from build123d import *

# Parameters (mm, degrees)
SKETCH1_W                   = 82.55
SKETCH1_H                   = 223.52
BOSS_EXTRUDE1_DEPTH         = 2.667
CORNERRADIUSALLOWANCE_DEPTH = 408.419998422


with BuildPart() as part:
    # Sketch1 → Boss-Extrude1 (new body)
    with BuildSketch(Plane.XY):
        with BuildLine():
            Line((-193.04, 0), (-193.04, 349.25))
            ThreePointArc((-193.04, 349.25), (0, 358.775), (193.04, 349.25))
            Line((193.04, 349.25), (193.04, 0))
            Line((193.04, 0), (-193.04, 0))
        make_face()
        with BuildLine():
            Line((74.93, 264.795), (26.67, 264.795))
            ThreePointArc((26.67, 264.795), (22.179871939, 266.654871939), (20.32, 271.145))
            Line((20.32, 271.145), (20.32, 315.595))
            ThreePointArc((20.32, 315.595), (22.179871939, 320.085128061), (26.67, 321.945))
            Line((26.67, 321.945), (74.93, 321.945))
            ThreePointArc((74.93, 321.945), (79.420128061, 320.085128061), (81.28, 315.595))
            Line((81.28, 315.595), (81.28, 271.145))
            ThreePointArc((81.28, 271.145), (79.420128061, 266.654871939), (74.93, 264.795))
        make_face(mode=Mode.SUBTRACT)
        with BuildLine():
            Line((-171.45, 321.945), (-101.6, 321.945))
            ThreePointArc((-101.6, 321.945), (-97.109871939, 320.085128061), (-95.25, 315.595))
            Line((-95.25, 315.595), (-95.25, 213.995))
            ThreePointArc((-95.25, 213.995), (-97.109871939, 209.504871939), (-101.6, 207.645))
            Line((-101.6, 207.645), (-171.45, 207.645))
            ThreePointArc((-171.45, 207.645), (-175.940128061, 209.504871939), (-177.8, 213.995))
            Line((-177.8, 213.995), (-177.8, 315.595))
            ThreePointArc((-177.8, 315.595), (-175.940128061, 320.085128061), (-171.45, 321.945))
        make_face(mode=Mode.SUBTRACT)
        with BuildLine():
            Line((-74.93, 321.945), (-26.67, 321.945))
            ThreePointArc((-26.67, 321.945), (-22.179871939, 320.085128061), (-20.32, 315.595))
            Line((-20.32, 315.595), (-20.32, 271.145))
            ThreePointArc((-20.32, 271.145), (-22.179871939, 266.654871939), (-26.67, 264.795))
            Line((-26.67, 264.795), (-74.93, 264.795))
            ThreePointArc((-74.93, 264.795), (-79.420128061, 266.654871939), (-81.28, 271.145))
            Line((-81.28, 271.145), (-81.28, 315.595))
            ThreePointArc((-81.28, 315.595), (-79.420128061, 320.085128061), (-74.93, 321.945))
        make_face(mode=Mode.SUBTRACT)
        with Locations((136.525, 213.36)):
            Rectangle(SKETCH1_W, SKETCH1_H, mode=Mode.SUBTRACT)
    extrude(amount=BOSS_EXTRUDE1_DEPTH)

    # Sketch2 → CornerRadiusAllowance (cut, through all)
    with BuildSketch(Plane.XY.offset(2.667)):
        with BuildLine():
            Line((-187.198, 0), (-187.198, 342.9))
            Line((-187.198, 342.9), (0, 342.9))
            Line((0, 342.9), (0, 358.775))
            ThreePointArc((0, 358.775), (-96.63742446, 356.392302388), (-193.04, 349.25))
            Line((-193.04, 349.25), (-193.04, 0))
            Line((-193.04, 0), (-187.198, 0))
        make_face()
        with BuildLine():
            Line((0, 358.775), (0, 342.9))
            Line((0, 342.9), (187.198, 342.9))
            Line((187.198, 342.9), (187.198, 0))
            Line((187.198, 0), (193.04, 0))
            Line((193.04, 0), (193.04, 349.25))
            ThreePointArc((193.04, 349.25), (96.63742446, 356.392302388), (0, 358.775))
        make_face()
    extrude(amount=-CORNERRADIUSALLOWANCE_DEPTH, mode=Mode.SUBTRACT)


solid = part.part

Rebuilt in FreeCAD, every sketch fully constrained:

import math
import FreeCAD as App
import Part
import Sketcher
from FreeCAD import Vector
Q = App.Units.Quantity

doc = App.newDocument("Part")
body = doc.addObject("PartDesign::Body", "Body")

# Sketch on XY plane
sketch1 = body.newObject("Sketcher::SketchObject", "Sketch")
sketch1.AttachmentSupport = (doc.getObject("XY_Plane"), [""])
sketch1.MapMode = "FlatFace"
sketch1.addGeometry([
    Part.LineSegment(Vector(-193.04, 349.25, 0), Vector(-193.04, 0, 0)),  # 0
    Part.LineSegment(Vector(-193.04, 0, 0), Vector(193.04, 0, 0)),  # 1
    Part.LineSegment(Vector(193.04, 0, 0), Vector(193.04, 349.25, 0)),  # 2
    Part.ArcOfCircle(Part.Circle(Vector(0, -1602.126167, 0), Vector(0, 0, 1), 1960.901167), math.radians(84.350393), math.radians(95.649607)),  # 3
    Part.LineSegment(Vector(95.25, 101.6, 0), Vector(95.25, 325.12, 0)),  # 4
    Part.LineSegment(Vector(95.25, 325.12, 0), Vector(177.8, 325.12, 0)),  # 5
    Part.LineSegment(Vector(177.8, 325.12, 0), Vector(177.8, 101.6, 0)),  # 6
    Part.LineSegment(Vector(177.8, 101.6, 0), Vector(95.25, 101.6, 0)),  # 7
    Part.LineSegment(Vector(74.93, 264.795, 0), Vector(26.67, 264.795, 0)),  # 8
    Part.ArcOfCircle(Part.Circle(Vector(26.67, 271.145, 0), Vector(0, 0, 1), 6.35), math.radians(180), math.radians(270)),  # 9
    Part.LineSegment(Vector(20.32, 271.145, 0), Vector(20.32, 315.595, 0)),  # 10
    Part.ArcOfCircle(Part.Circle(Vector(26.67, 315.595, 0), Vector(0, 0, 1), 6.35), math.radians(90), math.radians(180)),  # 11
    Part.LineSegment(Vector(26.67, 321.945, 0), Vector(74.93, 321.945, 0)),  # 12
    Part.ArcOfCircle(Part.Circle(Vector(74.93, 315.595, 0), Vector(0, 0, 1), 6.35), math.radians(0), math.radians(90)),  # 13
    Part.LineSegment(Vector(81.28, 315.595, 0), Vector(81.28, 271.145, 0)),  # 14
    Part.ArcOfCircle(Part.Circle(Vector(74.93, 271.145, 0), Vector(0, 0, 1), 6.35), math.radians(-90), math.radians(0)),  # 15
    Part.LineSegment(Vector(-171.45, 321.945, 0), Vector(-101.6, 321.945, 0)),  # 16
    Part.ArcOfCircle(Part.Circle(Vector(-101.6, 315.595, 0), Vector(0, 0, 1), 6.35), math.radians(0), math.radians(90)),  # 17
    Part.LineSegment(Vector(-95.25, 315.595, 0), Vector(-95.25, 213.995, 0)),  # 18
    Part.ArcOfCircle(Part.Circle(Vector(-101.6, 213.995, 0), Vector(0, 0, 1), 6.35), math.radians(-90), math.radians(0)),  # 19
    Part.LineSegment(Vector(-101.6, 207.645, 0), Vector(-171.45, 207.645, 0)),  # 20
    Part.ArcOfCircle(Part.Circle(Vector(-171.45, 213.995, 0), Vector(0, 0, 1), 6.35), math.radians(180), math.radians(270)),  # 21
    Part.LineSegment(Vector(-177.8, 213.995, 0), Vector(-177.8, 315.595, 0)),  # 22
    Part.ArcOfCircle(Part.Circle(Vector(-171.45, 315.595, 0), Vector(0, 0, 1), 6.35), math.radians(90), math.radians(180)),  # 23
    Part.LineSegment(Vector(-74.93, 321.945, 0), Vector(-26.67, 321.945, 0)),  # 24
    Part.ArcOfCircle(Part.Circle(Vector(-26.67, 315.595, 0), Vector(0, 0, 1), 6.35), math.radians(0), math.radians(90)),  # 25
    Part.LineSegment(Vector(-20.32, 315.595, 0), Vector(-20.32, 271.145, 0)),  # 26
    Part.ArcOfCircle(Part.Circle(Vector(-26.67, 271.145, 0), Vector(0, 0, 1), 6.35), math.radians(-90), math.radians(0)),  # 27
    Part.LineSegment(Vector(-26.67, 264.795, 0), Vector(-74.93, 264.795, 0)),  # 28
    Part.ArcOfCircle(Part.Circle(Vector(-74.93, 271.145, 0), Vector(0, 0, 1), 6.35), math.radians(180), math.radians(270)),  # 29
    Part.LineSegment(Vector(-81.28, 271.145, 0), Vector(-81.28, 315.595, 0)),  # 30
    Part.ArcOfCircle(Part.Circle(Vector(-74.93, 315.595, 0), Vector(0, 0, 1), 6.35), math.radians(90), math.radians(180)),  # 31
], False)
sketch1.addConstraint([
    Sketcher.Constraint("Coincident", 0, 2, 1, 1),
    Sketcher.Constraint("Coincident", 1, 2, 2, 1),
    Sketcher.Constraint("Coincident", 2, 2, 3, 1),
    Sketcher.Constraint("Coincident", 3, 2, 0, 1),
    Sketcher.Constraint("Coincident", 4, 2, 5, 1),
    Sketcher.Constraint("Coincident", 5, 2, 6, 1),
    Sketcher.Constraint("Coincident", 6, 2, 7, 1),
    Sketcher.Constraint("Coincident", 7, 2, 4, 1),
    Sketcher.Constraint("Tangent", 8, 2, 9, 2),
    Sketcher.Constraint("Tangent", 9, 1, 10, 1),
    Sketcher.Constraint("Tangent", 10, 2, 11, 2),
    Sketcher.Constraint("Tangent", 11, 1, 12, 1),
    Sketcher.Constraint("Tangent", 12, 2, 13, 2),
    Sketcher.Constraint("Tangent", 13, 1, 14, 1),
    Sketcher.Constraint("Tangent", 14, 2, 15, 2),
    Sketcher.Constraint("Tangent", 15, 1, 8, 1),
    Sketcher.Constraint("Tangent", 16, 2, 17, 2),
    Sketcher.Constraint("Tangent", 17, 1, 18, 1),
    Sketcher.Constraint("Tangent", 18, 2, 19, 2),
    Sketcher.Constraint("Tangent", 19, 1, 20, 1),
    Sketcher.Constraint("Tangent", 20, 2, 21, 2),
    Sketcher.Constraint("Tangent", 21, 1, 22, 1),
    Sketcher.Constraint("Tangent", 22, 2, 23, 2),
    Sketcher.Constraint("Tangent", 23, 1, 16, 1),
    Sketcher.Constraint("Tangent", 24, 2, 25, 2),
    Sketcher.Constraint("Tangent", 25, 1, 26, 1),
    Sketcher.Constraint("Tangent", 26, 2, 27, 2),
    Sketcher.Constraint("Tangent", 27, 1, 28, 1),
    Sketcher.Constraint("Tangent", 28, 2, 29, 2),
    Sketcher.Constraint("Tangent", 29, 1, 30, 1),
    Sketcher.Constraint("Tangent", 30, 2, 31, 2),
    Sketcher.Constraint("Tangent", 31, 1, 24, 1),
    Sketcher.Constraint("Vertical", 0),
    Sketcher.Constraint("Horizontal", 1),
    Sketcher.Constraint("Vertical", 2),
    Sketcher.Constraint("Vertical", 4),
    Sketcher.Constraint("Horizontal", 5),
    Sketcher.Constraint("Vertical", 6),
    Sketcher.Constraint("Horizontal", 7),
    Sketcher.Constraint("Horizontal", 8),
    Sketcher.Constraint("Vertical", 10),
    Sketcher.Constraint("Horizontal", 12),
    Sketcher.Constraint("Vertical", 14),
    Sketcher.Constraint("Horizontal", 16),
    Sketcher.Constraint("Vertical", 18),
    Sketcher.Constraint("Horizontal", 20),
    Sketcher.Constraint("Vertical", 22),
    Sketcher.Constraint("Horizontal", 24),
    Sketcher.Constraint("Vertical", 26),
    Sketcher.Constraint("Horizontal", 28),
    Sketcher.Constraint("Vertical", 30),
    Sketcher.Constraint("Equal", 9, 11),
    Sketcher.Constraint("Equal", 11, 13),
    Sketcher.Constraint("Equal", 13, 15),
    Sketcher.Constraint("Equal", 15, 17),
    Sketcher.Constraint("Equal", 17, 19),
    Sketcher.Constraint("Equal", 19, 21),
    Sketcher.Constraint("Equal", 21, 23),
    Sketcher.Constraint("Equal", 23, 25),
    Sketcher.Constraint("Equal", 25, 27),
    Sketcher.Constraint("Equal", 27, 29),
    Sketcher.Constraint("Equal", 29, 31),
    Sketcher.Constraint("Symmetric", 0, 2, 1, 2, -1, 1),
    Sketcher.Constraint("Symmetric", 11, 3, 25, 3, -2),
    Sketcher.Constraint("Symmetric", 15, 3, 29, 3, -2),
    Sketcher.Constraint("PointOnObject", 3, 3, -2),
    Sketcher.Constraint("Horizontal", 13, 3, 17, 3),
    Sketcher.Constraint("DistanceY", 18, 2, 18, 1, Q("4 in")),
    Sketcher.Constraint("Radius", 9, Q("0.25 in")),
    Sketcher.Constraint("DistanceX", 1, 1, 1, 2, Q("15.2 in")),
    Sketcher.Constraint("DistanceX", 8, 2, 8, 1, Q("1.9 in")),
    Sketcher.Constraint("DistanceY", 4, 1, 4, 2, Q("8.8 in")),
    Sketcher.Constraint("DistanceX", 17, 3, -1, 1, Q("4 in")),
    Sketcher.Constraint("DistanceX", -1, 1, 5, 2, Q("7 in")),
    Sketcher.Constraint("DistanceY", -1, 1, 6, 2, Q("4 in")),
    Sketcher.Constraint("DistanceX", 21, 1, -1, 1, Q("7 in")),
    Sketcher.Constraint("DistanceX", 25, 3, 13, 3, Q("4 in")),
    Sketcher.Constraint("DistanceY", 8, 2, 11, 3, Q("2 in")),
    Sketcher.Constraint("DistanceX", 5, 1, 5, 2, Q("3.25 in")),
    Sketcher.Constraint("DistanceY", 0, 2, 0, 1, Q("13.75 in")),
    Sketcher.Constraint("DistanceY", -1, 1, 9, 3, Q("10.675 in")),
    Sketcher.Constraint("Radius", 3, Q("1960.901167 mm")),
])
pad1 = body.newObject("PartDesign::Pad", "Pad")
pad1.Profile = sketch1
pad1.Length = Q("0.105 in")

# Sketch on XY plane
sketch2 = body.newObject("Sketcher::SketchObject", "Sketch001")
sketch2.AttachmentSupport = (doc.getObject("XY_Plane"), [""])
sketch2.MapMode = "FlatFace"
sketch2.AttachmentOffset = App.Placement(Vector(0, 0, 0.105 * 25.4), App.Rotation())
sketch2.addGeometry([
    Part.LineSegment(Vector(-187.198, 0, 0), Vector(-187.198, 342.9, 0)),  # 0
    Part.LineSegment(Vector(-187.198, 342.9, 0), Vector(187.198, 342.9, 0)),  # 1
    Part.LineSegment(Vector(187.198, 342.9, 0), Vector(187.198, 0, 0)),  # 2
    Part.LineSegment(Vector(187.198, 0, 0), Vector(193.04, 0, 0)),  # 3
    Part.LineSegment(Vector(193.04, 0, 0), Vector(193.04, 349.25, 0)),  # 4
    Part.ArcOfCircle(Part.Circle(Vector(0, -1602.126167, 0), Vector(0, 0, 1), 1960.901167), math.radians(84.350393), math.radians(90)),  # 5
    Part.ArcOfCircle(Part.Circle(Vector(0, -1602.126167, 0), Vector(0, 0, 1), 1960.901167), math.radians(90), math.radians(95.649607)),  # 6
    Part.LineSegment(Vector(-193.04, 349.25, 0), Vector(-193.04, 0, 0)),  # 7
    Part.LineSegment(Vector(-193.04, 0, 0), Vector(-187.198, 0, 0)),  # 8
], False)
sketch2.addConstraint([
    Sketcher.Constraint("Coincident", 0, 2, 1, 1),
    Sketcher.Constraint("Coincident", 1, 2, 2, 1),
    Sketcher.Constraint("Coincident", 2, 2, 3, 1),
    Sketcher.Constraint("Coincident", 3, 2, 4, 1),
    Sketcher.Constraint("Coincident", 4, 2, 5, 1),
    Sketcher.Constraint("Coincident", 5, 2, 6, 1),
    Sketcher.Constraint("Coincident", 6, 2, 7, 1),
    Sketcher.Constraint("Coincident", 7, 2, 8, 1),
    Sketcher.Constraint("Coincident", 8, 2, 0, 1),
    Sketcher.Constraint("Vertical", 0),
    Sketcher.Constraint("Horizontal", 1),
    Sketcher.Constraint("Vertical", 2),
    Sketcher.Constraint("Horizontal", 3),
    Sketcher.Constraint("Vertical", 4),
    Sketcher.Constraint("Vertical", 7),
    Sketcher.Constraint("Horizontal", 8),
    Sketcher.Constraint("Coincident", 6, 3, 5, 3),
    Sketcher.Constraint("Symmetric", 3, 2, 7, 2, -1, 1),
    Sketcher.Constraint("Symmetric", 2, 2, 8, 2, -2),
    Sketcher.Constraint("PointOnObject", 5, 3, -2),
    Sketcher.Constraint("PointOnObject", 5, 2, -2),
    Sketcher.Constraint("DistanceY", 0, 1, 0, 2, Q("13.5 in")),
    Sketcher.Constraint("DistanceX", 1, 1, 1, 2, Q("14.74 in")),
    Sketcher.Constraint("DistanceX", 3, 1, 3, 2, Q("0.23 in")),
    Sketcher.Constraint("DistanceY", 4, 1, 4, 2, Q("13.75 in")),
    Sketcher.Constraint("Radius", 5, Q("1960.901167 mm")),
])
pocket1 = body.newObject("PartDesign::Pocket", "Pocket")
pocket1.Profile = sketch2
pocket1.Type = "ThroughAll"

doc.recompute()
